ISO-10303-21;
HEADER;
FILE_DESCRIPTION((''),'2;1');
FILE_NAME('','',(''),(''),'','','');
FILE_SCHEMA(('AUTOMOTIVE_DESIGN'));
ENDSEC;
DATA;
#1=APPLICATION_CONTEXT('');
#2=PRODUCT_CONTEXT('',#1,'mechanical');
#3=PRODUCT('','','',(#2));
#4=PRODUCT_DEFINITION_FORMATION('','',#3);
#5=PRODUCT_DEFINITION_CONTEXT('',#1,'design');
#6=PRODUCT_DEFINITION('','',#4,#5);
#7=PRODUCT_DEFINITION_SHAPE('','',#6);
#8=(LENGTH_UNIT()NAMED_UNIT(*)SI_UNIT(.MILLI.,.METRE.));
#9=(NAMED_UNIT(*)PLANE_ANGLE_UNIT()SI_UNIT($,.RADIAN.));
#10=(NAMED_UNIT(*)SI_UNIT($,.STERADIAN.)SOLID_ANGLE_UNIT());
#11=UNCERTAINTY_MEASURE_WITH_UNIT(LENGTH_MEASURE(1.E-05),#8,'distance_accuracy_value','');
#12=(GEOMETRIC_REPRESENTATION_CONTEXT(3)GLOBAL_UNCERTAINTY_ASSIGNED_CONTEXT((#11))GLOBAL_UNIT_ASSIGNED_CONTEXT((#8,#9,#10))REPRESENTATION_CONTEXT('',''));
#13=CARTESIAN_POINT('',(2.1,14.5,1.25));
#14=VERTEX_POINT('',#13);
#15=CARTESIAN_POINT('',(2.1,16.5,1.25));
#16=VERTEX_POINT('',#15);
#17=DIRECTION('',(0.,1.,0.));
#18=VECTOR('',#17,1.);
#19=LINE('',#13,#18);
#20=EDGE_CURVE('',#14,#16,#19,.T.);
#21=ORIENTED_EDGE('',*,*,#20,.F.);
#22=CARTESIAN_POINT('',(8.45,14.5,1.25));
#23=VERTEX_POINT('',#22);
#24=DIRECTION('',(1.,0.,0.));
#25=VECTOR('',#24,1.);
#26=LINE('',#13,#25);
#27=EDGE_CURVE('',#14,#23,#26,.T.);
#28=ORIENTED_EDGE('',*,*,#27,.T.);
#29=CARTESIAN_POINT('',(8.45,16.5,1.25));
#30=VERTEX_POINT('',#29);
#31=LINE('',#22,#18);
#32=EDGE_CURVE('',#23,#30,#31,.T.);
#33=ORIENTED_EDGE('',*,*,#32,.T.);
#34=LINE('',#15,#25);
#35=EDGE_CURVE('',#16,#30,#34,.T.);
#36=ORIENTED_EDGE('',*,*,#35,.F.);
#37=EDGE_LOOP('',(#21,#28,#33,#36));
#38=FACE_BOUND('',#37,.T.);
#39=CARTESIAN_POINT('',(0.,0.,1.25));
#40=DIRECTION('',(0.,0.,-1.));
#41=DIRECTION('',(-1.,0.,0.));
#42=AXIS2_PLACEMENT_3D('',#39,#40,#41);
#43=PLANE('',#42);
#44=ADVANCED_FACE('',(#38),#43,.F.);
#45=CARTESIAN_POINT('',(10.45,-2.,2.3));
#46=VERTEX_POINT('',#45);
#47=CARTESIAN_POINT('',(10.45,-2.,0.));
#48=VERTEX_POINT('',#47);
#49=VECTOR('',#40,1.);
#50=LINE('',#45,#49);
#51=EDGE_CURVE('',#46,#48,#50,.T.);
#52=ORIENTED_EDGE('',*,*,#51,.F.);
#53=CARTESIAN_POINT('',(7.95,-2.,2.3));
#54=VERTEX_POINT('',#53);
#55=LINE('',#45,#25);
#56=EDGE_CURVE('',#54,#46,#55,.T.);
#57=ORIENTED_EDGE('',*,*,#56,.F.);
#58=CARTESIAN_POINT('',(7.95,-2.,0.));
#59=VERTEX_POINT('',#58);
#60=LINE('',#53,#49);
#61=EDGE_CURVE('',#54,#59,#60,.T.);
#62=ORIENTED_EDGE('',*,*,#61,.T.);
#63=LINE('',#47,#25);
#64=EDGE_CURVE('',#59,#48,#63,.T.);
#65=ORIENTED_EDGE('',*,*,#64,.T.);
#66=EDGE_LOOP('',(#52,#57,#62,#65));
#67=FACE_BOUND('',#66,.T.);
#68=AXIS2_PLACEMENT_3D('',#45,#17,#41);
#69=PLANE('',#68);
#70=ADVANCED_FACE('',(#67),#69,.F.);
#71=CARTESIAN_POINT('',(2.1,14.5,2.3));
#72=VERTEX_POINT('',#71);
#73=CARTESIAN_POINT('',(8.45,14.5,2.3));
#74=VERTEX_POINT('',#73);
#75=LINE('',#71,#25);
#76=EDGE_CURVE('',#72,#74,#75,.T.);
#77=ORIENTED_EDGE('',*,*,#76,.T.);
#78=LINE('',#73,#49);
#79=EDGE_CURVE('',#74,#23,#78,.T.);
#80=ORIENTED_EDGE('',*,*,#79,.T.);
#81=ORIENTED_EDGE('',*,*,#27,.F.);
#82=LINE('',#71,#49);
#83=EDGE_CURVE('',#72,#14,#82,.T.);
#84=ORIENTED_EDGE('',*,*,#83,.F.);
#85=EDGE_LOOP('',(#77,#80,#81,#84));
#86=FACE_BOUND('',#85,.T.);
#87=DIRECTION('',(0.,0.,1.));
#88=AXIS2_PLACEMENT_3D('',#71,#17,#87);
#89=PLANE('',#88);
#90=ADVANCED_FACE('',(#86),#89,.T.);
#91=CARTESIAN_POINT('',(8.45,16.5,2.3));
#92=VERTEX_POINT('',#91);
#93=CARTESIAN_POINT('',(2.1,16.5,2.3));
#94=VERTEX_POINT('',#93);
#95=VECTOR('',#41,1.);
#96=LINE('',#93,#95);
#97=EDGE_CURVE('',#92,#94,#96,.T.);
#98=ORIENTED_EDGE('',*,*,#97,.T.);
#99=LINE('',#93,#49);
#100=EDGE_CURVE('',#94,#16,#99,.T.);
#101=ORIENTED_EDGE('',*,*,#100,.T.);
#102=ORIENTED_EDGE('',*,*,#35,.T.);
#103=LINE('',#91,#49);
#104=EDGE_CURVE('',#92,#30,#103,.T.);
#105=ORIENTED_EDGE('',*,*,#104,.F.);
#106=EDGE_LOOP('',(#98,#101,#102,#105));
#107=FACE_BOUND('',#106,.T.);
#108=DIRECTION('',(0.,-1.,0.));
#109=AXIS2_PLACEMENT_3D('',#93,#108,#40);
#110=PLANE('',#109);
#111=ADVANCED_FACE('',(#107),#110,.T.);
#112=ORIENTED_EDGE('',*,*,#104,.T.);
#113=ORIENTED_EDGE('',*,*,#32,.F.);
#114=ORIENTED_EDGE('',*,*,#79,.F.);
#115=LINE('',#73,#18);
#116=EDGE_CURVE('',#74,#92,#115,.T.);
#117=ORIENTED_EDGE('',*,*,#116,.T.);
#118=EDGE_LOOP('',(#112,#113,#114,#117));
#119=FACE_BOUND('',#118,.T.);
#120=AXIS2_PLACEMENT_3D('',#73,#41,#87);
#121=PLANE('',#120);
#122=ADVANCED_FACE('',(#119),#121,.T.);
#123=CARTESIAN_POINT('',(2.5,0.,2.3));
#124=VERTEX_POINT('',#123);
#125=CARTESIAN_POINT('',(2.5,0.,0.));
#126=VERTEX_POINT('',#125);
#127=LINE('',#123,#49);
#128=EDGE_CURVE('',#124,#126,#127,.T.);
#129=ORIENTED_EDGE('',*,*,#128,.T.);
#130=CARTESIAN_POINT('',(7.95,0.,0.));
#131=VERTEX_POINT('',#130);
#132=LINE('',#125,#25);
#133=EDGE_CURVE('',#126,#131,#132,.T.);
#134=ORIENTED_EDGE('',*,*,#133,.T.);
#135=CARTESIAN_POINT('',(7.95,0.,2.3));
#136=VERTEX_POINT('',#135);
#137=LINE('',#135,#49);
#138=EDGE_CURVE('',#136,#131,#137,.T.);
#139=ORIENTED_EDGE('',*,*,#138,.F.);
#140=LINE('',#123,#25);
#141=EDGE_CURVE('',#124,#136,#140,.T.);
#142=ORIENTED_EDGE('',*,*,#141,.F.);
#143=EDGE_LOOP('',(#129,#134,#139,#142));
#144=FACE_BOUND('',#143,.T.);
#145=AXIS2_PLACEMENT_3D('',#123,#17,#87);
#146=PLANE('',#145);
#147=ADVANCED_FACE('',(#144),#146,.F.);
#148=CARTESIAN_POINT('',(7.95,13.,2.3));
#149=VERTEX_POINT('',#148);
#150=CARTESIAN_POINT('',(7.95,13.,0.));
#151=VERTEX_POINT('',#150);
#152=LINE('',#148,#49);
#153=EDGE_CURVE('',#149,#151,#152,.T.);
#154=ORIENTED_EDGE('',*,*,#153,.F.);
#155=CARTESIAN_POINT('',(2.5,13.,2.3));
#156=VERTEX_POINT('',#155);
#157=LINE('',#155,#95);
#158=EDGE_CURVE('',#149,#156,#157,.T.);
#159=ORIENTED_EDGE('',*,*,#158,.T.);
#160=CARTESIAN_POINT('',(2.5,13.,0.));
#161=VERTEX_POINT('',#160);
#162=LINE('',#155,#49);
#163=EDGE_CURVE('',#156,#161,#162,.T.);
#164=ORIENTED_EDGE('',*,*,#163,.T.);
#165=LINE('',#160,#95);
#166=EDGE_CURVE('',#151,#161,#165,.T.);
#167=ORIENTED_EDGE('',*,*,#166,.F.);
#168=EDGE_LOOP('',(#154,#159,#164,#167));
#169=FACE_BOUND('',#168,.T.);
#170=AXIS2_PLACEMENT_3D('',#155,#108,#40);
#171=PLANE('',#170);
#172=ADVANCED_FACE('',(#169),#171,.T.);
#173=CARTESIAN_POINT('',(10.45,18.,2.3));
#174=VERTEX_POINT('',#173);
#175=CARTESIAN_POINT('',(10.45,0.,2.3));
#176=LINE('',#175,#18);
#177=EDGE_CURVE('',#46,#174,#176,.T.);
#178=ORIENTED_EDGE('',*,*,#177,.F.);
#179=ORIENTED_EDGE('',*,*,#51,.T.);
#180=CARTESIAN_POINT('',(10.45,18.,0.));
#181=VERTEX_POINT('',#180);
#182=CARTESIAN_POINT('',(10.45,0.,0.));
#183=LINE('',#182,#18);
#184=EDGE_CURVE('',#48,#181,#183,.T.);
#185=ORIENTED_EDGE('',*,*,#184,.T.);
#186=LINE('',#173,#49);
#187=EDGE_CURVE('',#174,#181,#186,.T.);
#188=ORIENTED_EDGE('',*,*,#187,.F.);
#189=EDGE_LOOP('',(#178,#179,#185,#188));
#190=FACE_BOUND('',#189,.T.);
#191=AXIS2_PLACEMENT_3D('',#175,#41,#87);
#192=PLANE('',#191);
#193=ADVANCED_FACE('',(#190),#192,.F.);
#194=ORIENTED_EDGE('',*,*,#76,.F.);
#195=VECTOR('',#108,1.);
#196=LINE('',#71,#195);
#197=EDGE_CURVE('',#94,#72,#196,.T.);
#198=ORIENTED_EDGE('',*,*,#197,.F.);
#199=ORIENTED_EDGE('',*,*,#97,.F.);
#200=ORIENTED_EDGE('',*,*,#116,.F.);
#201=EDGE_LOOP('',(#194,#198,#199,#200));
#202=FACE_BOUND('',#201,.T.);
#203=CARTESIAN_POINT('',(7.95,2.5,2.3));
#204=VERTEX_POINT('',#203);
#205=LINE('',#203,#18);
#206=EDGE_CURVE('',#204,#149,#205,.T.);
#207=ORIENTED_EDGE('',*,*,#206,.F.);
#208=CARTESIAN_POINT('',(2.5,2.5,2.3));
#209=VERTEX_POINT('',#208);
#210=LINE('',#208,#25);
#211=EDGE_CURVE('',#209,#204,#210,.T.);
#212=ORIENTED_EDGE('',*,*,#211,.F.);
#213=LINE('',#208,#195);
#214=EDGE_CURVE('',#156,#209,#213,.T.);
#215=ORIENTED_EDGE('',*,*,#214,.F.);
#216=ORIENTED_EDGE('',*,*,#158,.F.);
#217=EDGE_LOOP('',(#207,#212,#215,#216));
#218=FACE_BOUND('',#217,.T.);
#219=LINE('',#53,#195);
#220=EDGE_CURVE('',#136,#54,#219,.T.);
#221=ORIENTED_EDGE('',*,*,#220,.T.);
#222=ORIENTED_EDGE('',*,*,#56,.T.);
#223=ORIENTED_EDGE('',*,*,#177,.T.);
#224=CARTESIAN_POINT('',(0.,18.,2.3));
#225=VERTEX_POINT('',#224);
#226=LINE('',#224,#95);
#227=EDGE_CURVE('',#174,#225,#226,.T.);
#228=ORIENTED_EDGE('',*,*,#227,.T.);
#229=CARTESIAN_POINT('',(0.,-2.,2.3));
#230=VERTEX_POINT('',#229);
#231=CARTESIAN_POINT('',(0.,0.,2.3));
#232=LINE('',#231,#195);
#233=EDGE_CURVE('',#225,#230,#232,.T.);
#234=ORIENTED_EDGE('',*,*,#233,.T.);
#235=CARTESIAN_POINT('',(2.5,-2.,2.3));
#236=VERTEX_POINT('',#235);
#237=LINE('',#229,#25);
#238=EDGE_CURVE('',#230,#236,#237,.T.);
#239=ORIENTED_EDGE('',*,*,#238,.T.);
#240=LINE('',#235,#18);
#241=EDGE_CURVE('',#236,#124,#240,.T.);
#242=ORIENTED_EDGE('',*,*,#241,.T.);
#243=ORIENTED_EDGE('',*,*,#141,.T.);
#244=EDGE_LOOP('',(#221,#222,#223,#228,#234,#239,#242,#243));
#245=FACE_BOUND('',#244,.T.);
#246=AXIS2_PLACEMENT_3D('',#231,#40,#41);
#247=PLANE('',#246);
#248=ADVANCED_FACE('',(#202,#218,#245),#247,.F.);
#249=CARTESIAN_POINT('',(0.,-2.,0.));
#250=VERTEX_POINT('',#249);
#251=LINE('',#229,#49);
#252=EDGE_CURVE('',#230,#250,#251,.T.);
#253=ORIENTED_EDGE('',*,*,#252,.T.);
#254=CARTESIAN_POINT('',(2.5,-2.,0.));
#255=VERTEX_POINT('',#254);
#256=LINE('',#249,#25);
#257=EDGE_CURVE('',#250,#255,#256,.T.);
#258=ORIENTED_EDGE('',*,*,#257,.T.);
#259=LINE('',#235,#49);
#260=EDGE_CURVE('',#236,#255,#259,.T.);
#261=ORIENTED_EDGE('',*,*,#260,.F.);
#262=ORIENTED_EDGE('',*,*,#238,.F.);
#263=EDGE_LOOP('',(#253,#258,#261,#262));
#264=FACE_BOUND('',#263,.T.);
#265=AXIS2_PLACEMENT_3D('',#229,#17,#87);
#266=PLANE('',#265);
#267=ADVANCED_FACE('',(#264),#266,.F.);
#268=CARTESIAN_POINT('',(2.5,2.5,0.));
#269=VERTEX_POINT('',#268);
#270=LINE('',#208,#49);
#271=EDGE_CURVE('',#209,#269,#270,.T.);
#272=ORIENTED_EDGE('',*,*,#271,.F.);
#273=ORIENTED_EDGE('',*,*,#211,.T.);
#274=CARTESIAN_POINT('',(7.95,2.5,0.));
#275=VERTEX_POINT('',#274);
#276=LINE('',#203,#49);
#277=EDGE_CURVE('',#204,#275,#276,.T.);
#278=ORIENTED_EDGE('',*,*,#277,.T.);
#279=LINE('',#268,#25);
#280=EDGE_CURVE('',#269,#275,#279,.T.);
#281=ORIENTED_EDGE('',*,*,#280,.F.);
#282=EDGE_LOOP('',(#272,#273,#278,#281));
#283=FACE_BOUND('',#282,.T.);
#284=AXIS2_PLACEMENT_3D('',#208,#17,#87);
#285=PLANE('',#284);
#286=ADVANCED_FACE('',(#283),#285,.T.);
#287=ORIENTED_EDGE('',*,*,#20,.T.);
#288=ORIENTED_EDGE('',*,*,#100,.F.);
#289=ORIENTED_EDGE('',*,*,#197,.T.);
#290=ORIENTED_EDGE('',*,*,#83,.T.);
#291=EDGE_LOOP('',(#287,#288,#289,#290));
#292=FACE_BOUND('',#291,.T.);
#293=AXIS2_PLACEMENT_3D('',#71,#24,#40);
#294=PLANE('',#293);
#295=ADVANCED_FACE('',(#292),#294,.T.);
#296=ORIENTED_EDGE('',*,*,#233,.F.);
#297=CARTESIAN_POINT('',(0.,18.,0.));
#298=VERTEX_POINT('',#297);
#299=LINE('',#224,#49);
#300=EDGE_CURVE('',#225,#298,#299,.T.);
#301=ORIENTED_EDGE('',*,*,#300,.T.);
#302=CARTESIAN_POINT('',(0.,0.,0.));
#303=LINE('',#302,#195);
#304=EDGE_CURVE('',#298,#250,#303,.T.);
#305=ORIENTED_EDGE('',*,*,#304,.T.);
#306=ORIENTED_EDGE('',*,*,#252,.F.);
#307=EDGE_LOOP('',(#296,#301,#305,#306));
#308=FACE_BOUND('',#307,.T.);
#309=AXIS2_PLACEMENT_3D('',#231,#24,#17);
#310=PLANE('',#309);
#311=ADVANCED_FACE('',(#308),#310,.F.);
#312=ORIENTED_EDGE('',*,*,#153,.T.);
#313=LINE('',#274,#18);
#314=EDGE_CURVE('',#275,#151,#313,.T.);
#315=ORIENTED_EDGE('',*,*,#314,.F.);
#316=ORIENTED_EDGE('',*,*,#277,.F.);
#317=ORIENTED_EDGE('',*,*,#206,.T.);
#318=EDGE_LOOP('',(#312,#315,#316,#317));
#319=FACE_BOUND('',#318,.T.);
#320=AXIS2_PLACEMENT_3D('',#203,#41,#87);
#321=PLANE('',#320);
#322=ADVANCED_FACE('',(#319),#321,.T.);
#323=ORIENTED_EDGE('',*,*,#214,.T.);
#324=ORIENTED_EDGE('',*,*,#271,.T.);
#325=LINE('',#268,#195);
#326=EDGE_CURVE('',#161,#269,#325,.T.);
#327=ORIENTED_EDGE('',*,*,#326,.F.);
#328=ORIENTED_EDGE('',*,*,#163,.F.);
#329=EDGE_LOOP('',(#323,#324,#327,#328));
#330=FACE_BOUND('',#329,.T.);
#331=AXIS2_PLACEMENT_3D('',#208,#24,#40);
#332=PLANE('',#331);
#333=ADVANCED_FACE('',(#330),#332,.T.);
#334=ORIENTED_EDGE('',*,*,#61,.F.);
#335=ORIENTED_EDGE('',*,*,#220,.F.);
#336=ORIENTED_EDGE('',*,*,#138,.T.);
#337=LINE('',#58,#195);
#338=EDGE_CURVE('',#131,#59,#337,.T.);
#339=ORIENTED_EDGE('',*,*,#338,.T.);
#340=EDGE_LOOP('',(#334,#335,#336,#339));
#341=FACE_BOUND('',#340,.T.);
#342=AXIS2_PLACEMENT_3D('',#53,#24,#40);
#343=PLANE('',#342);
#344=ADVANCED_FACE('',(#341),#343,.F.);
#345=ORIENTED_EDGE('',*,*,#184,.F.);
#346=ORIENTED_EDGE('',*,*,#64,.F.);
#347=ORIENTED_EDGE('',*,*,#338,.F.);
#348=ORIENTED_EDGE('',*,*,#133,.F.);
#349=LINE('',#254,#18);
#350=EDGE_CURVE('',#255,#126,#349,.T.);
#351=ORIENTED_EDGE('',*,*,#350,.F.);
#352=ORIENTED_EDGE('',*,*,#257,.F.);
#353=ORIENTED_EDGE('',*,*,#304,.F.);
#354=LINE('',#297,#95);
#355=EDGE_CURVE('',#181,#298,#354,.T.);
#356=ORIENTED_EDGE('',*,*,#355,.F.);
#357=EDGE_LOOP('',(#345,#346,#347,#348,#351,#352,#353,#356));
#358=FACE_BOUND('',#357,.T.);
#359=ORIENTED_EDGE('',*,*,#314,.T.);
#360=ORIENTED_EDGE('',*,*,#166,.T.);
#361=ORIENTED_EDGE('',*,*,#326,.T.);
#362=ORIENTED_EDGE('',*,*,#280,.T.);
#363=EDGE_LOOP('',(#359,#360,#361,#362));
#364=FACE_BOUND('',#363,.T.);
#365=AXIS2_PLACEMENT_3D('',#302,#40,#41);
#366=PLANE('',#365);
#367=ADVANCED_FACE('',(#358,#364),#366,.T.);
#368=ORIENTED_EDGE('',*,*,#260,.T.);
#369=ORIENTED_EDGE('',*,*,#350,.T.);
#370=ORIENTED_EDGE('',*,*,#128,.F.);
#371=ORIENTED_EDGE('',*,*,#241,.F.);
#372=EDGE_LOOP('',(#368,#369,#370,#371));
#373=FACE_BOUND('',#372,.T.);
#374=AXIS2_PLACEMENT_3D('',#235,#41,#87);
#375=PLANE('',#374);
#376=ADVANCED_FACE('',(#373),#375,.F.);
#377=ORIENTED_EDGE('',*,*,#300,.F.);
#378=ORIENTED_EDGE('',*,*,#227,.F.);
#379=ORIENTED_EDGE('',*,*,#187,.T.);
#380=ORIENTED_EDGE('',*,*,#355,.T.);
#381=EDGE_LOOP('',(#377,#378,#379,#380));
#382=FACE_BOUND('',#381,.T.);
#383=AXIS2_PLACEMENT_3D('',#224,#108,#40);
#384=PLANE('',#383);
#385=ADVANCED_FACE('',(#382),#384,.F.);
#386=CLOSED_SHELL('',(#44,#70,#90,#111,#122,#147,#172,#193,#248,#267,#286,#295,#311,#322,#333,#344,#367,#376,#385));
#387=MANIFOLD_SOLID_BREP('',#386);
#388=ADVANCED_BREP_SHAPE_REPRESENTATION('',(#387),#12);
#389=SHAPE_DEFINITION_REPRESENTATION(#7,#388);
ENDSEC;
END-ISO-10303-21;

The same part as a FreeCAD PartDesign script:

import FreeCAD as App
import Part
import Sketcher

doc = App.newDocument("Part")
body = doc.addObject("PartDesign::Body", "Body")

sketch1 = body.newObject("Sketcher::SketchObject", "Sketch")
sketch1.AttachmentSupport = (doc.getObject("XY_Plane"), [""])
sketch1.MapMode = "FlatFace"
sketch1.addGeometry([
    Part.LineSegment(App.Vector(0, -2, 0), App.Vector(2.5, -2, 0)),
    Part.LineSegment(App.Vector(2.5, -2, 0), App.Vector(2.5, 0, 0)),
    Part.LineSegment(App.Vector(2.5, 0, 0), App.Vector(7.95, 0, 0)),
    Part.LineSegment(App.Vector(7.95, 0, 0), App.Vector(7.95, -2, 0)),
    Part.LineSegment(App.Vector(7.95, -2, 0), App.Vector(10.45, -2, 0)),
    Part.LineSegment(App.Vector(10.45, -2, 0), App.Vector(10.45, 18, 0)),
    Part.LineSegment(App.Vector(10.45, 18, 0), App.Vector(0, 18, 0)),
    Part.LineSegment(App.Vector(0, 18, 0), App.Vector(0, -2, 0)),
    Part.LineSegment(App.Vector(7.95, 2.5, 0), App.Vector(2.5, 2.5, 0)),
    Part.LineSegment(App.Vector(2.5, 2.5, 0), App.Vector(2.5, 13, 0)),
    Part.LineSegment(App.Vector(2.5, 13, 0), App.Vector(7.95, 13, 0)),
    Part.LineSegment(App.Vector(7.95, 13, 0), App.Vector(7.95, 2.5, 0)),
    Part.LineSegment(App.Vector(8.45, 14.5, 0), App.Vector(2.1, 14.5, 0)),
    Part.LineSegment(App.Vector(2.1, 14.5, 0), App.Vector(2.1, 16.5, 0)),
    Part.LineSegment(App.Vector(2.1, 16.5, 0), App.Vector(8.45, 16.5, 0)),
    Part.LineSegment(App.Vector(8.45, 16.5, 0), App.Vector(8.45, 14.5, 0)),
], False)
sketch1.addConstraint([
    Sketcher.Constraint("Coincident", 0, 2, 1, 1),
    Sketcher.Constraint("Coincident", 1, 2, 2, 1),
    Sketcher.Constraint("Coincident", 2, 2, 3, 1),
    Sketcher.Constraint("Coincident", 3, 2, 4, 1),
    Sketcher.Constraint("Coincident", 4, 2, 5, 1),
    Sketcher.Constraint("Coincident", 5, 2, 6, 1),
    Sketcher.Constraint("Coincident", 6, 2, 7, 1),
    Sketcher.Constraint("Coincident", 7, 2, 0, 1),
    Sketcher.Constraint("Coincident", 8, 2, 9, 1),
    Sketcher.Constraint("Coincident", 9, 2, 10, 1),
    Sketcher.Constraint("Coincident", 10, 2, 11, 1),
    Sketcher.Constraint("Coincident", 11, 2, 8, 1),
    Sketcher.Constraint("Coincident", 12, 2, 13, 1),
    Sketcher.Constraint("Coincident", 13, 2, 14, 1),
    Sketcher.Constraint("Coincident", 14, 2, 15, 1),
    Sketcher.Constraint("Coincident", 15, 2, 12, 1),
    Sketcher.Constraint("Horizontal", 0),
    Sketcher.Constraint("Vertical", 1),
    Sketcher.Constraint("Horizontal", 2),
    Sketcher.Constraint("Vertical", 3),
    Sketcher.Constraint("Horizontal", 4),
    Sketcher.Constraint("Vertical", 5),
    Sketcher.Constraint("Horizontal", 6),
    Sketcher.Constraint("Vertical", 7),
    Sketcher.Constraint("Horizontal", 8),
    Sketcher.Constraint("Vertical", 9),
    Sketcher.Constraint("Horizontal", 10),
    Sketcher.Constraint("Vertical", 11),
    Sketcher.Constraint("Horizontal", 12),
    Sketcher.Constraint("Vertical", 13),
    Sketcher.Constraint("Horizontal", 14),
    Sketcher.Constraint("Vertical", 15),
    Sketcher.Constraint("PointOnObject", 1, 2, -1),
    Sketcher.Constraint("PointOnObject", 6, 2, -2),
    Sketcher.Constraint("Horizontal", 0, 2, 3, 2),
    Sketcher.Constraint("Vertical", 1, 2, 8, 2),
    Sketcher.Constraint("Vertical", 3, 2, 10, 2),
    Sketcher.Constraint("Equal", 0, 4),
    Sketcher.Constraint("Equal", 3, 13),
    Sketcher.Constraint("DistanceY", 1, 1, 1, 2, 2.0),
    Sketcher.Constraint("DistanceY", 5, 1, 5, 2, 20.0),
    Sketcher.Constraint("DistanceX", 0, 1, 0, 2, 2.5),
    Sketcher.Constraint("DistanceY", 9, 1, 9, 2, 10.5),
    Sketcher.Constraint("DistanceY", -1, 1, 9, 2, 13.0),
    Sketcher.Constraint("DistanceY", 8, 2, 12, 2, 12.0),
    Sketcher.Constraint("DistanceX", 14, 2, 5, 2, 2.0),
    Sketcher.Constraint("DistanceX", 2, 1, 2, 2, 5.45),
    Sketcher.Constraint("DistanceX", 12, 2, 12, 1, 6.35),
])
pad1 = body.newObject("PartDesign::Pad", "Pad")
pad1.Profile = sketch1
pad1.Length = 2.3

sketch2 = body.newObject("Sketcher::SketchObject", "Sketch001")
sketch2.AttachmentSupport = (doc.getObject("XY_Plane"), [""])
sketch2.MapMode = "FlatFace"
sketch2.addGeometry([
    Part.LineSegment(App.Vector(2.1, 16.5, 0), App.Vector(2.1, 14.5, 0)),
    Part.LineSegment(App.Vector(2.1, 14.5, 0), App.Vector(8.45, 14.5, 0)),
    Part.LineSegment(App.Vector(8.45, 14.5, 0), App.Vector(8.45, 16.5, 0)),
    Part.LineSegment(App.Vector(8.45, 16.5, 0), App.Vector(2.1, 16.5, 0)),
], False)
sketch2.addConstraint([
    Sketcher.Constraint("Coincident", 0, 2, 1, 1),
    Sketcher.Constraint("Coincident", 1, 2, 2, 1),
    Sketcher.Constraint("Coincident", 2, 2, 3, 1),
    Sketcher.Constraint("Coincident", 3, 2, 0, 1),
    Sketcher.Constraint("Vertical", 0),
    Sketcher.Constraint("Horizontal", 1),
    Sketcher.Constraint("Vertical", 2),
    Sketcher.Constraint("Horizontal", 3),
    Sketcher.Constraint("DistanceY", 0, 2, 0, 1, 2.0),
    Sketcher.Constraint("DistanceX", 1, 1, 1, 2, 6.35),
    Sketcher.Constraint("DistanceX", -1, 1, 0, 2, 2.1),
    Sketcher.Constraint("DistanceY", -1, 1, 0, 2, 14.5),
])
pad2 = body.newObject("PartDesign::Pad", "Pad001")
pad2.Profile = sketch2
pad2.Length = 1.25

doc.recompute()
